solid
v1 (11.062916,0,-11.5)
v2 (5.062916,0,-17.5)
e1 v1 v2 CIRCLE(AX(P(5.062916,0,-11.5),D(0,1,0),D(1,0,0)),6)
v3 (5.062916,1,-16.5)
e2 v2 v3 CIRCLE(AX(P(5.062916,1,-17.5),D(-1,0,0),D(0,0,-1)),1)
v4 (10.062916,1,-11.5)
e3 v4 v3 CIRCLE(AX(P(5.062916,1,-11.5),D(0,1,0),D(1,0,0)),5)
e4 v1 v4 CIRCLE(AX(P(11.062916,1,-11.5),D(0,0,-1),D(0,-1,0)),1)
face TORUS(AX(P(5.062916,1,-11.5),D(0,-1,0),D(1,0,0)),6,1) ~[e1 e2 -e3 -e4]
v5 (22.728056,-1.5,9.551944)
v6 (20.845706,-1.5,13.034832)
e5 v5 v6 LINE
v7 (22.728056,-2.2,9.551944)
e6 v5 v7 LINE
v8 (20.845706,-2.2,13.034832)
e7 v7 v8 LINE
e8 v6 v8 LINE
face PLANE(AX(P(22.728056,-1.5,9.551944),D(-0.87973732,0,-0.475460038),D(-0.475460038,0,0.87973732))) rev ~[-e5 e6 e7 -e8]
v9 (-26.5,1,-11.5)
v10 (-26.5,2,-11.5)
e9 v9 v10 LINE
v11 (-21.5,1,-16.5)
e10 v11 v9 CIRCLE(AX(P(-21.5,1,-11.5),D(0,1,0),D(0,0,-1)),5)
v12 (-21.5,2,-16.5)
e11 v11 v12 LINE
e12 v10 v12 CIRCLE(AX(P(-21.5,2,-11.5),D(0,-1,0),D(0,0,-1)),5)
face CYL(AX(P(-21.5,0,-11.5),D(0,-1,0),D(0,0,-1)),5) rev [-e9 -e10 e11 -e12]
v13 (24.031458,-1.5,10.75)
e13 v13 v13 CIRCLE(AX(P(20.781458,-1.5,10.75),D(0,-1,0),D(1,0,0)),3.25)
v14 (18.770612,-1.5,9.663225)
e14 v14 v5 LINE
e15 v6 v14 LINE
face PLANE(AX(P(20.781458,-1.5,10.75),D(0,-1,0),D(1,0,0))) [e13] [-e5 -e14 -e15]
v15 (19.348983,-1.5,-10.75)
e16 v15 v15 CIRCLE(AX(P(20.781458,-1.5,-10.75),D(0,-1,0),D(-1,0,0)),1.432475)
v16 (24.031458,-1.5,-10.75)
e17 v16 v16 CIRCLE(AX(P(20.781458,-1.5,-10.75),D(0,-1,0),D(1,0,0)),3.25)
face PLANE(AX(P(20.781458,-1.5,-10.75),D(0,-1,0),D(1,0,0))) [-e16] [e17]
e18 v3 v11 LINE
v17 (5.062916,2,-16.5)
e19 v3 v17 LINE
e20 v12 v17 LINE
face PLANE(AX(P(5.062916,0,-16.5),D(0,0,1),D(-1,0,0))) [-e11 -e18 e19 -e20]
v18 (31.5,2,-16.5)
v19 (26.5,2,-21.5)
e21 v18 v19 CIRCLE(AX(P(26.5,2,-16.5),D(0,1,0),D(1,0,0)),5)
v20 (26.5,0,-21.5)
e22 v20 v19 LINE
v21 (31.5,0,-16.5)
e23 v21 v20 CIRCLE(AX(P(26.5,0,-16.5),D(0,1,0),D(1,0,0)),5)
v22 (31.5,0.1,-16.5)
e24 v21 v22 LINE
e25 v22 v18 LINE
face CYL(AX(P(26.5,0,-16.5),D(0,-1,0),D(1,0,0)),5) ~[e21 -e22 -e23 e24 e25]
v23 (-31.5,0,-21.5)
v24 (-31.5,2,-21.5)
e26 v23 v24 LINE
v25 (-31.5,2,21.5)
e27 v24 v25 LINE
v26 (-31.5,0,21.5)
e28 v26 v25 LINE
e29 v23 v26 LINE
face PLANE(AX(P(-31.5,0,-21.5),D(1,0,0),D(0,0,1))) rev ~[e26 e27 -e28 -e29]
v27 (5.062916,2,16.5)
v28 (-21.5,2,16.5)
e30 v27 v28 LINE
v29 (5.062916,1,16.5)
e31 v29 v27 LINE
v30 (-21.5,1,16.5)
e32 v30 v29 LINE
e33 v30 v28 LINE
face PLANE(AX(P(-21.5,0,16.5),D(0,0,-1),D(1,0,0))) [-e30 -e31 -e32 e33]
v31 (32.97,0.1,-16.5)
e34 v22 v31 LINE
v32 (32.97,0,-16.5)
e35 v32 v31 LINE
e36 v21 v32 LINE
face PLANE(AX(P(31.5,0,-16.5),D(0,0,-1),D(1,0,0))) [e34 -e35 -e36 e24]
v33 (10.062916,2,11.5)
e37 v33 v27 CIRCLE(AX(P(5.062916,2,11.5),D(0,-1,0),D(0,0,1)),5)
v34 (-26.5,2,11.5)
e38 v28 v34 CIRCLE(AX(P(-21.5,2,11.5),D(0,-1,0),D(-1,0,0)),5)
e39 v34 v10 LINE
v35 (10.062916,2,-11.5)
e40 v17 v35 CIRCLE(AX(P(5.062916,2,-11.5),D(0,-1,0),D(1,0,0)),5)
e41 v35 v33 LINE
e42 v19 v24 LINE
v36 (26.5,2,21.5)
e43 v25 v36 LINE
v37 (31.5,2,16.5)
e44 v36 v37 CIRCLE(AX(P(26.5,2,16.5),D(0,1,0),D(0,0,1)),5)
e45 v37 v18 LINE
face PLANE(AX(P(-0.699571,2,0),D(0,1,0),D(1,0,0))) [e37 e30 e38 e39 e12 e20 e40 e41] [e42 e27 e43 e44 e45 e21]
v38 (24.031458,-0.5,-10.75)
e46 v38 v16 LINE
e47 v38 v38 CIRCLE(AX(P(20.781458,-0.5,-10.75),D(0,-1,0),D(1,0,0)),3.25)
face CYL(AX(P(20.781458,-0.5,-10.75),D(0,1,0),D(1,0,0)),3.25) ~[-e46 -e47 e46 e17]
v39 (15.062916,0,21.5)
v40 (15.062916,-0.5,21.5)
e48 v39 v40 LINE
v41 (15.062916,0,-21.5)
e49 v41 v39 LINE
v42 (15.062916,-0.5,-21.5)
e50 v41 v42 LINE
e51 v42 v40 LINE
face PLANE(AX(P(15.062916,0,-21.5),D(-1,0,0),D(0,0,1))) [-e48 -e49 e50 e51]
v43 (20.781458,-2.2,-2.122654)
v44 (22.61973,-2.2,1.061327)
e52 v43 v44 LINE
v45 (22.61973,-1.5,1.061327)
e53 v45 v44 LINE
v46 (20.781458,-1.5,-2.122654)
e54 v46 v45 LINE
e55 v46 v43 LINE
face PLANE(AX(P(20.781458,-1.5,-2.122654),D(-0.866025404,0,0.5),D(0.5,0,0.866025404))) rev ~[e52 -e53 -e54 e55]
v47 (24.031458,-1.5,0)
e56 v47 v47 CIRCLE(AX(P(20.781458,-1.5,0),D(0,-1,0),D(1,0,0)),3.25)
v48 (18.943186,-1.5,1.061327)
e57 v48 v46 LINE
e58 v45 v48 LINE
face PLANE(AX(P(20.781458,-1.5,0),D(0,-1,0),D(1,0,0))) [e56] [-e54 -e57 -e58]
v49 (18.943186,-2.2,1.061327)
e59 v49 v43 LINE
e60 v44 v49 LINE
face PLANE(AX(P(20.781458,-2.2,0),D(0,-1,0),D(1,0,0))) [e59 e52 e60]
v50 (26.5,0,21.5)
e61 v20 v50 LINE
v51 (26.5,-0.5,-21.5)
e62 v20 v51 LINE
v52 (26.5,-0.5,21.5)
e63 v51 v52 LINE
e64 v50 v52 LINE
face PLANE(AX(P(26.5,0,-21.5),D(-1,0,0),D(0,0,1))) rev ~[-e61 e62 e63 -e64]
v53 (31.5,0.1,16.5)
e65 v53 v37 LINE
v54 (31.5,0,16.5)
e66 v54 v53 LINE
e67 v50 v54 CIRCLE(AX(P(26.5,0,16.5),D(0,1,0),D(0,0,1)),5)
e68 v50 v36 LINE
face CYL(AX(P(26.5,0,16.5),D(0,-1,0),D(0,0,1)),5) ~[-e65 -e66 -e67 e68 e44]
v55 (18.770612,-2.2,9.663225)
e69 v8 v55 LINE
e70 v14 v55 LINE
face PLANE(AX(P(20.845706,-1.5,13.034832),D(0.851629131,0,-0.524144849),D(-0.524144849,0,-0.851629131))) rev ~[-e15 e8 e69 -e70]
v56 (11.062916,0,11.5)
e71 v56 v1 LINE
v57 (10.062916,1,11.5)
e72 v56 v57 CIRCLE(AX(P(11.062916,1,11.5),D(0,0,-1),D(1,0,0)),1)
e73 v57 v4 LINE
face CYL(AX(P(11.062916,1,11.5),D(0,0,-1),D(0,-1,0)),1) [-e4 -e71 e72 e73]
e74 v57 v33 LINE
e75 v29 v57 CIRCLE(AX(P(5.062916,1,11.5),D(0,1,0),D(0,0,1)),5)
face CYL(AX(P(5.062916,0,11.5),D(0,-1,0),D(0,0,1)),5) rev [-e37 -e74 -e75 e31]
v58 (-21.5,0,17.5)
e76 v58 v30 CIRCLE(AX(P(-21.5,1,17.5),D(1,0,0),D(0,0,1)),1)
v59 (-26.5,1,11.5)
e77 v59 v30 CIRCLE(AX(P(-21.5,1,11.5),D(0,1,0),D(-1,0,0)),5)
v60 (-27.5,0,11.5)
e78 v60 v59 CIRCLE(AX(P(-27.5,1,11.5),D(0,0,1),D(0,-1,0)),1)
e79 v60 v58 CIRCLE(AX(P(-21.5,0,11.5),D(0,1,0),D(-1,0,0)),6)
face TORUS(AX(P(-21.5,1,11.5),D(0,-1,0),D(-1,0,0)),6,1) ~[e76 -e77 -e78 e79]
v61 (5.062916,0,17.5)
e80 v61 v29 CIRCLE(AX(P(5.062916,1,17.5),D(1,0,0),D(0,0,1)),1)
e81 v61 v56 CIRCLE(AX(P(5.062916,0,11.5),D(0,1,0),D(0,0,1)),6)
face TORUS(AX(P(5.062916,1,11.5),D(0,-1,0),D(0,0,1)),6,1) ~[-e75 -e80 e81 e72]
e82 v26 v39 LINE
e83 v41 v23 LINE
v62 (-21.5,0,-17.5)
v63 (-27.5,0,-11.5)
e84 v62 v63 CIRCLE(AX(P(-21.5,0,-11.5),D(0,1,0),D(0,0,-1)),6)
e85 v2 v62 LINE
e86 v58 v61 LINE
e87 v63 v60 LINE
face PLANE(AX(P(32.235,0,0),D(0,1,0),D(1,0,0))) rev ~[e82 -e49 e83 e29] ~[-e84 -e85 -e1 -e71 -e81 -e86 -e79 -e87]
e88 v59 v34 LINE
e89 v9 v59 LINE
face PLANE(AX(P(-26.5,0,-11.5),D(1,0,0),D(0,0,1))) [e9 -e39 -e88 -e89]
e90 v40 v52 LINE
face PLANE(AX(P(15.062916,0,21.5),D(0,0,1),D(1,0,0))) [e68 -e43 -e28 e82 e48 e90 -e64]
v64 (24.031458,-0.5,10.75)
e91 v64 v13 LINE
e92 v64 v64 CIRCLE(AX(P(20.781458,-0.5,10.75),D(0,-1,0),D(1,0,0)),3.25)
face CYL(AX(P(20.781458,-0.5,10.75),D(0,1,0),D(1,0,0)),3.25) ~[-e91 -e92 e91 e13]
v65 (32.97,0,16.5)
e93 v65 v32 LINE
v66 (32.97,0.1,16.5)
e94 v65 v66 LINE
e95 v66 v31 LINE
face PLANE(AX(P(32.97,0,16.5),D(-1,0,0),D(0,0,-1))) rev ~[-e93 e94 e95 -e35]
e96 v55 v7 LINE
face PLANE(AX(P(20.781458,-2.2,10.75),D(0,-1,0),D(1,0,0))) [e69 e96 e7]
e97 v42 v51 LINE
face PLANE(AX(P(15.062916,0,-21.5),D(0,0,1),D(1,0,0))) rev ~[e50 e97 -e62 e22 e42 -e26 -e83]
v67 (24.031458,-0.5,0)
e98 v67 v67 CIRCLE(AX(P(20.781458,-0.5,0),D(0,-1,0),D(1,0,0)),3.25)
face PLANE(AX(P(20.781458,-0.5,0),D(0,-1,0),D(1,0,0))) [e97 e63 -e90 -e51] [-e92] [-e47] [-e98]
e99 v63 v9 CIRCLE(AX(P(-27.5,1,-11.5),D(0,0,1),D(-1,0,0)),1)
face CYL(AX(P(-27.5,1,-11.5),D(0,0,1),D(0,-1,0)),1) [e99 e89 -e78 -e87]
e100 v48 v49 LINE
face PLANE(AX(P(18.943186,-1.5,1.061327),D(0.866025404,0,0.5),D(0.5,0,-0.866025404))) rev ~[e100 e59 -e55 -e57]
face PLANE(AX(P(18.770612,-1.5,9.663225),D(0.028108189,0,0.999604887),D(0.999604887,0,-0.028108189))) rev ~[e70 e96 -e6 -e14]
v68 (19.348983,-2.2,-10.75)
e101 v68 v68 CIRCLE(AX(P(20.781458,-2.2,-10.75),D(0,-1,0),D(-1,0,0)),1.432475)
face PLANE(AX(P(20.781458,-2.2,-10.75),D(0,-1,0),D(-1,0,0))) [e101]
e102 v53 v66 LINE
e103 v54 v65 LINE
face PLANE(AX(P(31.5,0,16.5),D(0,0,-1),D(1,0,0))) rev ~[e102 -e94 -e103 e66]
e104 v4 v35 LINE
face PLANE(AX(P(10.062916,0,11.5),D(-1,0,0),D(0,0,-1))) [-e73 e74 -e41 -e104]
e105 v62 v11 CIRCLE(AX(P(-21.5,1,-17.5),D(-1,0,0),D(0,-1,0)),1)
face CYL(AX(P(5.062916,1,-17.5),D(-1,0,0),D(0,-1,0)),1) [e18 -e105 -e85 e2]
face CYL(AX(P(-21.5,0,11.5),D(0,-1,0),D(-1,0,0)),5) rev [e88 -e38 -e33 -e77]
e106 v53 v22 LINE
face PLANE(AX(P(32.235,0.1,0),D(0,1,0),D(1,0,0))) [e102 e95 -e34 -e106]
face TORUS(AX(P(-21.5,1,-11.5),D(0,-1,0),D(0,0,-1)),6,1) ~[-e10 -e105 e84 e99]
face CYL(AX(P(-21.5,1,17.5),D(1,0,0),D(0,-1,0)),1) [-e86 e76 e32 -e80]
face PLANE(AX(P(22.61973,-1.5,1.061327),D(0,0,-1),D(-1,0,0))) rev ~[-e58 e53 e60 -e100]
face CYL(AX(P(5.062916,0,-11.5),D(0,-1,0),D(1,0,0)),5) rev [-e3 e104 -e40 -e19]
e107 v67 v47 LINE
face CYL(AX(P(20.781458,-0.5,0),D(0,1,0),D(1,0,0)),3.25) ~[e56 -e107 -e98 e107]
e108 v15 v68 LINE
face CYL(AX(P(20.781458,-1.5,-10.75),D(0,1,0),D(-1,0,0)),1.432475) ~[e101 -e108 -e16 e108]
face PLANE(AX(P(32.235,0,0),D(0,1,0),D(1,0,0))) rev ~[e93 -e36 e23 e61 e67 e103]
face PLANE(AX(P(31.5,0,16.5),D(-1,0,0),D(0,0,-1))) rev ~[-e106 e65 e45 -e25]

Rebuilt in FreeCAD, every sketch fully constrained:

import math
import FreeCAD as App
import Part
import Sketcher
Q = App.Units.Quantity


def edges_at(feature, points):
    """Names of the edges that pass closest to the given points."""
    edges = feature.Shape.Edges
    near = lambda p: min(range(len(edges)), key=lambda i: edges[i].distToShape(Part.Vertex(*p))[0])
    return sorted({f"Edge{near(p) + 1}" for p in points})

doc = App.newDocument("Part")
body = doc.addObject("PartDesign::Body", "Body")

sketch1 = body.newObject("Sketcher::SketchObject", "Sketch")
sketch1.AttachmentSupport = (doc.getObject("XZ_Plane"), [""])
sketch1.MapMode = "FlatFace"
sketch1.addGeometry(Part.LineSegment(App.Vector(-32, -22, 0), App.Vector(-32, 22, 0)), False)
sketch1.addGeometry(Part.LineSegment(App.Vector(-32, 22, 0), App.Vector(26, 22, 0)), False)
sketch1.addGeometry(Part.ArcOfCircle(Part.Circle(App.Vector(26, 16, 0), App.Vector(0, 0, 1), 5), math.radians(0), math.radians(90)), False)
sketch1.addGeometry(Part.LineSegment(App.Vector(32, 16, 0), App.Vector(32, -16, 0)), False)
sketch1.addGeometry(Part.ArcOfCircle(Part.Circle(App.Vector(26, -16, 0), App.Vector(0, 0, 1), 5), math.radians(-90), math.radians(0)), False)
sketch1.addGeometry(Part.LineSegment(App.Vector(26, -22, 0), App.Vector(-32, -22, 0)), False)
sketch1.addConstraint(Sketcher.Constraint("Coincident", 0, 2, 1, 1))
sketch1.addConstraint(Sketcher.Constraint("Tangent", 1, 2, 2, 2))
sketch1.addConstraint(Sketcher.Constraint("Tangent", 2, 1, 3, 1))
sketch1.addConstraint(Sketcher.Constraint("Tangent", 3, 2, 4, 2))
sketch1.addConstraint(Sketcher.Constraint("Tangent", 4, 1, 5, 1))
sketch1.addConstraint(Sketcher.Constraint("Coincident", 5, 2, 0, 1))
sketch1.addConstraint(Sketcher.Constraint("Vertical", 0))
sketch1.addConstraint(Sketcher.Constraint("Horizontal", 1))
sketch1.addConstraint(Sketcher.Constraint("Vertical", 3))
sketch1.addConstraint(Sketcher.Constraint("Horizontal", 5))
sketch1.addConstraint(Sketcher.Constraint("Equal", 2, 4))
sketch1.addConstraint(Sketcher.Constraint("Radius", 2, Q("5 mm")))
sketch1.addConstraint(Sketcher.Constraint("DistanceX", 1, 1, 1, 2, Q("58 mm")))
sketch1.addConstraint(Sketcher.Constraint("DistanceY", 0, 1, 0, 2, Q("43 mm")))
sketch1.addConstraint(Sketcher.Constraint("DistanceX", -1, 1, 2, 3, Q("26.5 mm")))
sketch1.addConstraint(Sketcher.Constraint("DistanceY", -1, 1, 2, 3, Q("16.5 mm")))
pad1 = body.newObject("PartDesign::Pad", "Pad")
pad1.Profile = sketch1
pad1.Length = 2
pad1.Reversed = True

sketch2 = body.newObject("Sketcher::SketchObject", "Sketch001")
sketch2.AttachmentSupport = (doc.getObject("XZ_Plane"), [""])
sketch2.MapMode = "FlatFace"
sketch2.addGeometry(Part.LineSegment(App.Vector(31.5, -16.5, 0), App.Vector(31.5, 16.5, 0)), False)
sketch2.addGeometry(Part.LineSegment(App.Vector(31.5, 16.5, 0), App.Vector(33, 16.5, 0)), False)
sketch2.addGeometry(Part.LineSegment(App.Vector(33, 16.5, 0), App.Vector(33, -16.5, 0)), False)
sketch2.addGeometry(Part.LineSegment(App.Vector(33, -16.5, 0), App.Vector(31.5, -16.5, 0)), False)
sketch2.addConstraint(Sketcher.Constraint("Coincident", 0, 2, 1, 1))
sketch2.addConstraint(Sketcher.Constraint("Coincident", 1, 2, 2, 1))
sketch2.addConstraint(Sketcher.Constraint("Coincident", 2, 2, 3, 1))
sketch2.addConstraint(Sketcher.Constraint("Coincident", 3, 2, 0, 1))
sketch2.addConstraint(Sketcher.Constraint("Vertical", 0))
sketch2.addConstraint(Sketcher.Constraint("Horizontal", 1))
sketch2.addConstraint(Sketcher.Constraint("Vertical", 2))
sketch2.addConstraint(Sketcher.Constraint("Horizontal", 3))
sketch2.addConstraint(Sketcher.Constraint("DistanceY", 0, 1, 0, 2, Q("33 mm")))
sketch2.addConstraint(Sketcher.Constraint("DistanceX", 1, 1, 1, 2, Q("1.47 mm")))
sketch2.addConstraint(Sketcher.Constraint("DistanceX", -1, 1, 0, 2, Q("31.5 mm")))
sketch2.addConstraint(Sketcher.Constraint("DistanceY", -1, 1, 0, 2, Q("16.5 mm")))
pad2 = body.newObject("PartDesign::Pad", "Pad001")
pad2.Profile = sketch2
pad2.Length = 0.1
pad2.Reversed = True

sketch3 = body.newObject("Sketcher::SketchObject", "Sketch002")
sketch3.AttachmentSupport = (doc.getObject("XZ_Plane"), [""])
sketch3.MapMode = "FlatFace"
sketch3.addGeometry(Part.LineSegment(App.Vector(15, 22, 0), App.Vector(15, -22, 0)), False)
sketch3.addGeometry(Part.LineSegment(App.Vector(15, -22, 0), App.Vector(26, -22, 0)), False)
sketch3.addGeometry(Part.LineSegment(App.Vector(26, -22, 0), App.Vector(26, 22, 0)), False)
sketch3.addGeometry(Part.LineSegment(App.Vector(26, 22, 0), App.Vector(15, 22, 0)), False)
sketch3.addConstraint(Sketcher.Constraint("Coincident", 0, 2, 1, 1))
sketch3.addConstraint(Sketcher.Constraint("Coincident", 1, 2, 2, 1))
sketch3.addConstraint(Sketcher.Constraint("Coincident", 2, 2, 3, 1))
sketch3.addConstraint(Sketcher.Constraint("Coincident", 3, 2, 0, 1))
sketch3.addConstraint(Sketcher.Constraint("Vertical", 0))
sketch3.addConstraint(Sketcher.Constraint("Horizontal", 1))
sketch3.addConstraint(Sketcher.Constraint("Vertical", 2))
sketch3.addConstraint(Sketcher.Constraint("Horizontal", 3))
sketch3.addConstraint(Sketcher.Constraint("DistanceY", 0, 2, 0, 1, Q("43 mm")))
sketch3.addConstraint(Sketcher.Constraint("DistanceY", 0, 2, -1, 1, Q("21.5 mm")))
sketch3.addConstraint(Sketcher.Constraint("DistanceX", -1, 1, 1, 2, Q("26.5 mm")))
sketch3.addConstraint(Sketcher.Constraint("DistanceX", 1, 1, 1, 2, Q("11.437084 mm")))
pad3 = body.newObject("PartDesign::Pad", "Pad002")
pad3.Profile = sketch3
pad3.Length = 0.5

sketch4 = body.newObject("Sketcher::SketchObject", "Sketch003")
sketch4.AttachmentSupport = (doc.getObject("XZ_Plane"), [""])
sketch4.MapMode = "FlatFace"
sketch4.AttachmentOffset = App.Placement(App.Vector(0, 0, 0.5), App.Rotation())
sketch4.addGeometry(Part.Circle(App.Vector(20.8, -10.8, 0), App.Vector(0, 0, 1), 3.2), False)
sketch4.addGeometry(Part.Circle(App.Vector(20.8, 0, 0), App.Vector(0, 0, 1), 3.2), False)
sketch4.addGeometry(Part.Circle(App.Vector(20.8, 10.8, 0), App.Vector(0, 0, 1), 3.2), False)
sketch4.addConstraint(Sketcher.Constraint("Equal", 0, 1))
sketch4.addConstraint(Sketcher.Constraint("Equal", 1, 2))
sketch4.addConstraint(Sketcher.Constraint("Symmetric", 0, 3, 2, 3, -1))
sketch4.addConstraint(Sketcher.Constraint("PointOnObject", 1, 3, -1))
sketch4.addConstraint(Sketcher.Constraint("Vertical", 0, 3, 1, 3))
sketch4.addConstraint(Sketcher.Constraint("Diameter", 0, Q("6.5 mm")))
sketch4.addConstraint(Sketcher.Constraint("DistanceY", 0, 3, 2, 3, Q("21.5 mm")))
sketch4.addConstraint(Sketcher.Constraint("DistanceX", -1, 1, 0, 3, Q("20.781458 mm")))
pad4 = body.newObject("PartDesign::Pad", "Pad003")
pad4.Profile = sketch4
pad4.Length = 1

sketch5 = body.newObject("Sketcher::SketchObject", "Sketch004")
sketch5.AttachmentSupport = (doc.getObject("XZ_Plane"), [""])
sketch5.MapMode = "FlatFace"
sketch5.AttachmentOffset = App.Placement(App.Vector(0, 0, 1.5), App.Rotation())
sketch5.addGeometry(Part.LineSegment(App.Vector(22.728056, 9.551944, 0), App.Vector(20.845706, 13.034832, 0)), False)
sketch5.addGeometry(Part.LineSegment(App.Vector(20.845706, 13.034832, 0), App.Vector(18.770612, 9.663225, 0)), False)
sketch5.addGeometry(Part.LineSegment(App.Vector(18.770612, 9.663225, 0), App.Vector(22.728056, 9.551944, 0)), False)
sketch5.addGeometry(Part.LineSegment(App.Vector(20.781458, -2.122654, 0), App.Vector(22.61973, 1.061327, 0)), False)
sketch5.addGeometry(Part.LineSegment(App.Vector(22.61973, 1.061327, 0), App.Vector(18.943186, 1.061327, 0)), False)
sketch5.addGeometry(Part.LineSegment(App.Vector(18.943186, 1.061327, 0), App.Vector(20.781458, -2.122654, 0)), False)
sketch5.addConstraint(Sketcher.Constraint("Coincident", 0, 2, 1, 1))
sketch5.addConstraint(Sketcher.Constraint("Coincident", 1, 2, 2, 1))
sketch5.addConstraint(Sketcher.Constraint("Coincident", 2, 2, 0, 1))
sketch5.addConstraint(Sketcher.Constraint("Coincident", 3, 2, 4, 1))
sketch5.addConstraint(Sketcher.Constraint("Coincident", 4, 2, 5, 1))
sketch5.addConstraint(Sketcher.Constraint("Coincident", 5, 2, 3, 1))
sketch5.addConstraint(Sketcher.Constraint("Horizontal", 4))
sketch5.addConstraint(Sketcher.Constraint("DistanceX", 5, 2, 2, 2, Q("1.946598 mm")))
sketch5.addConstraint(Sketcher.Constraint("DistanceY", 5, 2, 2, 2, Q("11.674598 mm")))
sketch5.addConstraint(Sketcher.Constraint("Distance", 0, Q("3.959009 mm")))
sketch5.addConstraint(Sketcher.Constraint("Distance", 1, Q("3.959009 mm")))
sketch5.addConstraint(Sketcher.Constraint("Distance", 2, Q("3.959009 mm")))
sketch5.addConstraint(Sketcher.Constraint("DistanceX", 4, 2, 4, 1, Q("3.676545 mm")))
sketch5.addConstraint(Sketcher.Constraint("DistanceY", -1, 1, 0, 2, Q("13.034832 mm")))
sketch5.addConstraint(Sketcher.Constraint("DistanceX", -1, 1, 1, 2, Q("18.770612 mm")))
sketch5.addConstraint(Sketcher.Constraint("DistanceX", -1, 1, 3, 2, Q("22.61973 mm")))
sketch5.addConstraint(Sketcher.Constraint("DistanceY", 2, 2, 1, 2, Q("0.111281 mm")))
sketch5.addConstraint(Sketcher.Constraint("DistanceY", 5, 2, 3, 2, Q("3.183981 mm")))
pad5 = body.newObject("PartDesign::Pad", "Pad004")
pad5.Profile = sketch5
pad5.Length = 0.7

sketch6 = body.newObject("Sketcher::SketchObject", "Sketch005")
sketch6.AttachmentSupport = (doc.getObject("XZ_Plane"), [""])
sketch6.MapMode = "FlatFace"
sketch6.addGeometry(Part.LineSegment(App.Vector(-22, -16, 0), App.Vector(5, -16, 0)), False)
sketch6.addGeometry(Part.ArcOfCircle(Part.Circle(App.Vector(5, -12, 0), App.Vector(0, 0, 1), 5), math.radians(-90), math.radians(0)), False)
sketch6.addGeometry(Part.LineSegment(App.Vector(10, -12, 0), App.Vector(10, 12, 0)), False)
sketch6.addGeometry(Part.ArcOfCircle(Part.Circle(App.Vector(5, 12, 0), App.Vector(0, 0, 1), 5), math.radians(0), math.radians(90)), False)
sketch6.addGeometry(Part.LineSegment(App.Vector(5, 16, 0), App.Vector(-22, 16, 0)), False)
sketch6.addGeometry(Part.ArcOfCircle(Part.Circle(App.Vector(-22, 12, 0), App.Vector(0, 0, 1), 5), math.radians(90), math.radians(180)), False)
sketch6.addGeometry(Part.LineSegment(App.Vector(-26, 12, 0), App.Vector(-26, -12, 0)), False)
sketch6.addGeometry(Part.ArcOfCircle(Part.Circle(App.Vector(-22, -12, 0), App.Vector(0, 0, 1), 5), math.radians(180), math.radians(270)), False)
sketch6.addConstraint(Sketcher.Constraint("Tangent", 0, 2, 1, 1))
sketch6.addConstraint(Sketcher.Constraint("Tangent", 1, 2, 2, 1))
sketch6.addConstraint(Sketcher.Constraint("Tangent", 2, 2, 3, 1))
sketch6.addConstraint(Sketcher.Constraint("Tangent", 3, 2, 4, 1))
sketch6.addConstraint(Sketcher.Constraint("Tangent", 4, 2, 5, 1))
sketch6.addConstraint(Sketcher.Constraint("Tangent", 5, 2, 6, 1))
sketch6.addConstraint(Sketcher.Constraint("Tangent", 6, 2, 7, 1))
sketch6.addConstraint(Sketcher.Constraint("Tangent", 7, 2, 0, 1))
sketch6.addConstraint(Sketcher.Constraint("Horizontal", 0))
sketch6.addConstraint(Sketcher.Constraint("Vertical", 2))
sketch6.addConstraint(Sketcher.Constraint("Horizontal", 4))
sketch6.addConstraint(Sketcher.Constraint("Vertical", 6))
sketch6.addConstraint(Sketcher.Constraint("Equal", 1, 3))
sketch6.addConstraint(Sketcher.Constraint("Equal", 3, 5))
sketch6.addConstraint(Sketcher.Constraint("Equal", 5, 7))
sketch6.addConstraint(Sketcher.Constraint("Radius", 1, Q("5 mm")))
sketch6.addConstraint(Sketcher.Constraint("DistanceY", 2, 1, 2, 2, Q("23 mm")))
sketch6.addConstraint(Sketcher.Constraint("DistanceY", 1, 3, -1, 1, Q("11.5 mm")))
sketch6.addConstraint(Sketcher.Constraint("DistanceX", 5, 3, -1, 1, Q("21.5 mm")))
sketch6.addConstraint(Sketcher.Constraint("DistanceX", 0, 1, 0, 2, Q("26.562916 mm")))
pocket1 = body.newObject("PartDesign::Pocket", "Pocket")
pocket1.Profile = sketch6
pocket1.Length = 10
doc.recompute()

fillet = body.newObject("PartDesign::Fillet", "Fillet")
fillet.Base = (pocket1, edges_at(pocket1, [
    (8.598, 0, 15.036),
    (-8.219, 0, 16.5),
    (-25.036, 0, 15.036),
    (-26.5, 0, 0),
    (-25.036, 0, -15.036),
    (-8.219, 0, -16.5),
    (8.598, 0, -15.036),
    (10.063, 0, 0),
]))
fillet.Radius = 1

sketch7 = body.newObject("Sketcher::SketchObject", "Sketch006")
sketch7.AttachmentSupport = (doc.getObject("XZ_Plane"), [""])
sketch7.MapMode = "FlatFace"
sketch7.AttachmentOffset = App.Placement(App.Vector(0, 0, 1.5), App.Rotation())
sketch7.addGeometry(Part.Circle(App.Vector(20.8, -10.8, 0), App.Vector(0, 0, 1), 1.4), False)
sketch7.addConstraint(Sketcher.Constraint("Diameter", 0, Q("2.86495 mm")))
sketch7.addConstraint(Sketcher.Constraint("DistanceY", 0, 3, -1, 1, Q("10.75 mm")))
sketch7.addConstraint(Sketcher.Constraint("DistanceX", -1, 1, 0, 3, Q("20.781458 mm")))
pad6 = body.newObject("PartDesign::Pad", "Pad005")
pad6.Profile = sketch7
pad6.Length = 0.7

doc.recompute()
